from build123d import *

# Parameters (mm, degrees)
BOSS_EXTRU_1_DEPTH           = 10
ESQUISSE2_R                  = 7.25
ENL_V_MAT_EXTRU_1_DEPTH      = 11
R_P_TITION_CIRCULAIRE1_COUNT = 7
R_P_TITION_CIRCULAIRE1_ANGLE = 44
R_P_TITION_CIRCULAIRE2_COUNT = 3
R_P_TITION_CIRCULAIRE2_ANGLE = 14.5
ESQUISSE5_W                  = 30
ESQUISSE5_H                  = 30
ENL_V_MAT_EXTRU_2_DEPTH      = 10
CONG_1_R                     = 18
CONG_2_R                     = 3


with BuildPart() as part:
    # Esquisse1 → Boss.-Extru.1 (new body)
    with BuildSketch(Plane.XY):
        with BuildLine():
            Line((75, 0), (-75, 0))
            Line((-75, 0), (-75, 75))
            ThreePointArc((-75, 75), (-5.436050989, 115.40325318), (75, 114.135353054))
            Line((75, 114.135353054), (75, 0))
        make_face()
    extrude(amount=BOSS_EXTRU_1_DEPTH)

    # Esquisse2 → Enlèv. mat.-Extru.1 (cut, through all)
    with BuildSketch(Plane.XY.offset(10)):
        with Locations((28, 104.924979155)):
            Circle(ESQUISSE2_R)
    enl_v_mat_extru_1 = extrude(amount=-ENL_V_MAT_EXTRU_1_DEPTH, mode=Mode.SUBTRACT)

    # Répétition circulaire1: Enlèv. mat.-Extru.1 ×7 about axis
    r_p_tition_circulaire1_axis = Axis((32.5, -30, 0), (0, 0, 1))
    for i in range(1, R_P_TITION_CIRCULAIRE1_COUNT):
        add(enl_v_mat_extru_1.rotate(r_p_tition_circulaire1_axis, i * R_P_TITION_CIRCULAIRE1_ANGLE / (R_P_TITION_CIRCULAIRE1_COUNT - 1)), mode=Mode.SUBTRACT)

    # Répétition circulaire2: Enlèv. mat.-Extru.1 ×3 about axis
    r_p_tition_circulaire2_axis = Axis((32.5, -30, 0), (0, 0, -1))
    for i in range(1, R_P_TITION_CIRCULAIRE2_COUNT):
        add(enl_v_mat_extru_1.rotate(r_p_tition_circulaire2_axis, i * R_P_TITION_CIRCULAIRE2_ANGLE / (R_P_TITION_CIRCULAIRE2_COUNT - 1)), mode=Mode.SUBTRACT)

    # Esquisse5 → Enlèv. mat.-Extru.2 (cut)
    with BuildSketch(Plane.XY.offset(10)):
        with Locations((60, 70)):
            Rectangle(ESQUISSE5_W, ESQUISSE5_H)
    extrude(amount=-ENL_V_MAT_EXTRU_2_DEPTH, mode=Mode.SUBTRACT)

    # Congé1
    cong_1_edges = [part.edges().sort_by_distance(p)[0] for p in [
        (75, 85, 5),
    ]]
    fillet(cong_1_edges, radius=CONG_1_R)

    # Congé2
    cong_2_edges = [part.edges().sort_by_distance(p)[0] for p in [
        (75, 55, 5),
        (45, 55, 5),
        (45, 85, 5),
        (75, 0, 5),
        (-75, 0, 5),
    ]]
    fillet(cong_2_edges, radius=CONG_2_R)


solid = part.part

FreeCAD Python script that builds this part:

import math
import FreeCAD as App
import Part
import Sketcher

V = App.Vector
Q = App.Units.Quantity


def edges_at(feature, points):
    """Names of the edges that pass closest to the given points."""
    edges = feature.Shape.Edges
    near = lambda p: min(range(len(edges)), key=lambda i: edges[i].distToShape(Part.Vertex(*p))[0])
    return sorted({f"Edge{near(p) + 1}" for p in points})


def add_polygon(sketch, points):
    """Adds a closed chain of lines whose ends are joined by coincident constraints."""
    first, n = sketch.GeometryCount, len(points)
    for a, b in zip(points, points[1:] + points[:1]):
        sketch.addGeometry(Part.LineSegment(App.Vector(*a, 0), App.Vector(*b, 0)), False)
    for i in range(n):
        sketch.addConstraint(Sketcher.Constraint("Coincident", first + i, 2, first + (i + 1) % n, 1))

doc = App.newDocument("Part")
body = doc.addObject("PartDesign::Body", "Body")

# Sketch on XY plane
sketch1 = doc.addObject("Sketcher::SketchObject", "Sketch")
body.addObject(sketch1)
sketch1.AttachmentSupport = (doc.XY_Plane, [""])
sketch1.MapMode = "FlatFace"
sketch1.addGeometry([
    Part.LineSegment(V(-75, 0, 0), V(75, 0, 0)),
    Part.LineSegment(V(75, 0, 0), V(75, 114.135353, 0)),
    Part.ArcOfCircle(Part.Circle(V(32.5, -30, 0), V(0, 0, 1), 150.270589), math.radians(73.571229), math.radians(135.674037)),
    Part.LineSegment(V(-75, 75, 0), V(-75, 0, 0)),
], False)
sketch1.addConstraint([
    Sketcher.Constraint("Coincident", 0, 2, 1, 1),
    Sketcher.Constraint("Coincident", 1, 2, 2, 1),
    Sketcher.Constraint("Coincident", 2, 2, 3, 1),
    Sketcher.Constraint("Coincident", 3, 2, 0, 1),
    Sketcher.Constraint("Horizontal", 0),
    Sketcher.Constraint("Vertical", 1),
    Sketcher.Constraint("Vertical", 3),
    Sketcher.Constraint("Symmetric", 0, 2, 3, 2, -1, 1),
    Sketcher.Constraint("DistanceX", 0, 1, 0, 2, Q("150 mm")),
    Sketcher.Constraint("DistanceY", 3, 2, 3, 1, Q("75 mm")),
    Sketcher.Constraint("DistanceY", 2, 3, -1, 1, Q("30 mm")),
    Sketcher.Constraint("DistanceX", -1, 1, 2, 3, Q("32.5 mm")),
])
pad1 = doc.addObject("PartDesign::Pad", "Pad")
body.addObject(pad1)
pad1.Profile = sketch1
pad1.Length = 10

# Sketch on XY plane
sketch2 = doc.addObject("Sketcher::SketchObject", "Sketch001")
body.addObject(sketch2)
sketch2.AttachmentSupport = (doc.XY_Plane, [""])
sketch2.MapMode = "FlatFace"
sketch2.AttachmentOffset = App.Placement(V(0, 0, 10), App.Rotation())
sketch2.addGeometry(Part.Circle(V(28, 104.924979, 0), V(0, 0, 1), 7.25), False)
sketch2.addConstraint([
    Sketcher.Constraint("Diameter", 0, Q("14.5 mm")),
    Sketcher.Constraint("DistanceX", -1, 1, 0, 3, Q("28 mm")),
    Sketcher.Constraint("DistanceY", -1, 1, 0, 3, Q("104.924979 mm")),
])
pocket1 = doc.addObject("PartDesign::Pocket", "Pocket")
body.addObject(pocket1)
pocket1.Profile = sketch2
pocket1.Type = "ThroughAll"
doc.recompute()

datumline = doc.addObject("PartDesign::Line", "DatumLine")
body.addObject(datumline)
datumline.Placement = App.Placement(V(32.5, -30, 0), App.Rotation(V(0, 0, 1), V(0, 0, 1)))
polarpattern = doc.addObject("PartDesign::PolarPattern", "PolarPattern")
body.addObject(polarpattern)
polarpattern.Originals = [pocket1]
polarpattern.Axis = (datumline, [""])
polarpattern.Angle = 44
polarpattern.Occurrences = 7
body.Tip = polarpattern
doc.recompute()

datumline2 = doc.addObject("PartDesign::Line", "DatumLine001")
body.addObject(datumline2)
datumline2.Placement = App.Placement(V(32.5, -30, 0), App.Rotation(V(0, 0, 1), V(0, 0, -1)))
polarpattern2 = doc.addObject("PartDesign::PolarPattern", "PolarPattern001")
body.addObject(polarpattern2)
polarpattern2.Originals = [pocket1]
polarpattern2.Axis = (datumline2, [""])
polarpattern2.Angle = 14.5
polarpattern2.Occurrences = 3
body.Tip = polarpattern2

# Sketch on XY plane
sketch3 = doc.addObject("Sketcher::SketchObject", "Sketch002")
body.addObject(sketch3)
sketch3.AttachmentSupport = (doc.XY_Plane, [""])
sketch3.MapMode = "FlatFace"
sketch3.AttachmentOffset = App.Placement(V(0, 0, 10), App.Rotation())
add_polygon(sketch3, [(45, 85), (45, 55), (75, 55), (75, 85)])  # lines 0-3
sketch3.addConstraint([
    Sketcher.Constraint("Vertical", 0),
    Sketcher.Constraint("Horizontal", 1),
    Sketcher.Constraint("Vertical", 2),
    Sketcher.Constraint("Horizontal", 3),
    Sketcher.Constraint("Equal", 3, 0),
    Sketcher.Constraint("DistanceX", 1, 1, 1, 2, Q("30 mm")),
    Sketcher.Constraint("DistanceX", -1, 1, 0, 2, Q("45 mm")),
    Sketcher.Constraint("DistanceY", -1, 1, 0, 2, Q("55 mm")),
])
pocket2 = doc.addObject("PartDesign::Pocket", "Pocket001")
body.addObject(pocket2)
pocket2.Profile = sketch3
pocket2.Length = 10
doc.recompute()

fillet = doc.addObject("PartDesign::Fillet", "Fillet")
body.addObject(fillet)
fillet.Base = (pocket2, edges_at(pocket2, [(75, 85, 5)]))
fillet.Radius = 18
doc.recompute()

fillet2 = doc.addObject("PartDesign::Fillet", "Fillet001")
body.addObject(fillet2)
fillet2.Base = (fillet, edges_at(fillet, [
    (75, 55, 5),
    (45, 55, 5),
    (45, 85, 5),
    (75, 0, 5),
    (-75, 0, 5),
]))
fillet2.Radius = 3

doc.recompute()
